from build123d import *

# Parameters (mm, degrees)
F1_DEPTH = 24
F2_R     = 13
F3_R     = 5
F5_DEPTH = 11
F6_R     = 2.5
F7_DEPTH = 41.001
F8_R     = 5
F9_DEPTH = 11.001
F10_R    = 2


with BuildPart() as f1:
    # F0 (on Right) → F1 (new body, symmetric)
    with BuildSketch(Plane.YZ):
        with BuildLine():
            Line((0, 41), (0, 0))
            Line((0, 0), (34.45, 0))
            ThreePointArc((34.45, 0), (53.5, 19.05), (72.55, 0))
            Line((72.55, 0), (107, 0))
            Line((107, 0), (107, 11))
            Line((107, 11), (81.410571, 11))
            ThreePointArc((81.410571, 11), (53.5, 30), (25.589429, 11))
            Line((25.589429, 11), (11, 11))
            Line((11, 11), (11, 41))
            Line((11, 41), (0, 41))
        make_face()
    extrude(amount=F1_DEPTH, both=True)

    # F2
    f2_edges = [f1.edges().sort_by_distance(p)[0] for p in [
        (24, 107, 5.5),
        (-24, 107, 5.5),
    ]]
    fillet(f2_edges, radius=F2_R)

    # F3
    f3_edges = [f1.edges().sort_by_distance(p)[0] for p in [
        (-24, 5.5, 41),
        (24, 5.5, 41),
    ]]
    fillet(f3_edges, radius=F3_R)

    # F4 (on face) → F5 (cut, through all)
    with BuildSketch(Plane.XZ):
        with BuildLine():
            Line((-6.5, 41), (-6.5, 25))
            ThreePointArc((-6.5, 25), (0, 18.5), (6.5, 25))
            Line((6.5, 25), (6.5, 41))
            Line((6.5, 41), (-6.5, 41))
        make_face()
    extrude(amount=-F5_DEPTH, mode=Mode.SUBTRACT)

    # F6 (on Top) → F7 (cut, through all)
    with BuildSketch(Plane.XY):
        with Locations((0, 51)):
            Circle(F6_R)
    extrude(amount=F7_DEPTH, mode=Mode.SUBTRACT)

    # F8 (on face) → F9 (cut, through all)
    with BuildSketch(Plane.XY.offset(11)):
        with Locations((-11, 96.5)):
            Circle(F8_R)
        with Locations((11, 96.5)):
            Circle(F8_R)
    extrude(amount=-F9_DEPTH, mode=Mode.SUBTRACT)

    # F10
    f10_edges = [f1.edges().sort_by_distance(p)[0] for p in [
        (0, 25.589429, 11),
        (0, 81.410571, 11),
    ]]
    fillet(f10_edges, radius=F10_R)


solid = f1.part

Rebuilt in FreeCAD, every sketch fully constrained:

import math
import FreeCAD as App
import Part
import Sketcher


def edges_at(feature, points):
    """Names of the edges that pass closest to the given points."""
    edges = feature.Shape.Edges
    near = lambda p: min(range(len(edges)), key=lambda i: edges[i].distToShape(Part.Vertex(*p))[0])
    return sorted({f"Edge{near(p) + 1}" for p in points})

doc = App.newDocument("Part")
body = doc.addObject("PartDesign::Body", "Body")

# Sketch on YZ plane
sketch1 = doc.addObject("Sketcher::SketchObject", "Sketch")
body.addObject(sketch1)
sketch1.AttachmentSupport = (doc.YZ_Plane, [""])
sketch1.MapMode = "FlatFace"
sketch1.addGeometry(Part.LineSegment(App.Vector(0, 41, 0), App.Vector(0, 0, 0)), False)
sketch1.addGeometry(Part.LineSegment(App.Vector(0, 0, 0), App.Vector(34, 0, 0)), False)
sketch1.addGeometry(Part.ArcOfCircle(Part.Circle(App.Vector(54, 0, 0), App.Vector(0, 0, 1), 19), math.radians(0), math.radians(180)), False)
sketch1.addGeometry(Part.LineSegment(App.Vector(73, 0, 0), App.Vector(107, 0, 0)), False)
sketch1.addGeometry(Part.LineSegment(App.Vector(107, 0, 0), App.Vector(107, 11, 0)), False)
sketch1.addGeometry(Part.LineSegment(App.Vector(107, 11, 0), App.Vector(81, 11, 0)), False)
sketch1.addGeometry(Part.ArcOfCircle(Part.Circle(App.Vector(54, 0, 0), App.Vector(0, 0, 1), 30), math.radians(22), math.radians(158)), False)
sketch1.addGeometry(Part.LineSegment(App.Vector(26, 11, 0), App.Vector(11, 11, 0)), False)
sketch1.addGeometry(Part.LineSegment(App.Vector(11, 11, 0), App.Vector(11, 41, 0)), False)
sketch1.addGeometry(Part.LineSegment(App.Vector(11, 41, 0), App.Vector(0, 41, 0)), False)
sketch1.addConstraint(Sketcher.Constraint("Coincident", 0, 2, 1, 1))
sketch1.addConstraint(Sketcher.Constraint("Coincident", 1, 2, 2, 2))
sketch1.addConstraint(Sketcher.Constraint("Coincident", 2, 1, 3, 1))
sketch1.addConstraint(Sketcher.Constraint("Coincident", 3, 2, 4, 1))
sketch1.addConstraint(Sketcher.Constraint("Coincident", 4, 2, 5, 1))
sketch1.addConstraint(Sketcher.Constraint("Coincident", 5, 2, 6, 1))
sketch1.addConstraint(Sketcher.Constraint("Coincident", 6, 2, 7, 1))
sketch1.addConstraint(Sketcher.Constraint("Coincident", 7, 2, 8, 1))
sketch1.addConstraint(Sketcher.Constraint("Coincident", 8, 2, 9, 1))
sketch1.addConstraint(Sketcher.Constraint("Coincident", 9, 2, 0, 1))
sketch1.addConstraint(Sketcher.Constraint("Vertical", 0))
sketch1.addConstraint(Sketcher.Constraint("Horizontal", 1))
sketch1.addConstraint(Sketcher.Constraint("Horizontal", 3))
sketch1.addConstraint(Sketcher.Constraint("Vertical", 4))
sketch1.addConstraint(Sketcher.Constraint("Horizontal", 5))
sketch1.addConstraint(Sketcher.Constraint("Horizontal", 7))
sketch1.addConstraint(Sketcher.Constraint("Vertical", 8))
sketch1.addConstraint(Sketcher.Constraint("Horizontal", 9))
sketch1.addConstraint(Sketcher.Constraint("Coincident", 0, 2, -1, 1))
sketch1.addConstraint(Sketcher.Constraint("Coincident", 6, 3, 2, 3))
sketch1.addConstraint(Sketcher.Constraint("PointOnObject", 2, 3, -1))
sketch1.addConstraint(Sketcher.Constraint("PointOnObject", 2, 1, -1))
sketch1.addConstraint(Sketcher.Constraint("Horizontal", 5, 2, 6, 2))
sketch1.addConstraint(Sketcher.Constraint("Equal", 1, 3))
sketch1.addConstraint(Sketcher.Constraint("Equal", 9, 4))
sketch1.addConstraint(Sketcher.Constraint("Radius", 6, 29.999999))
sketch1.addConstraint(Sketcher.Constraint("DistanceX", 9, 2, 9, 1, 11.0))
sketch1.addConstraint(Sketcher.Constraint("DistanceY", 0, 2, 0, 1, 41.0))
sketch1.addConstraint(Sketcher.Constraint("Radius", 2, 19.05))
sketch1.addConstraint(Sketcher.Constraint("DistanceX", -1, 1, 3, 2, 107.0))
pad1 = doc.addObject("PartDesign::Pad", "Pad")
body.addObject(pad1)
pad1.Profile = sketch1
pad1.Length = 48
pad1.Midplane = True
doc.recompute()

fillet = doc.addObject("PartDesign::Fillet", "Fillet")
body.addObject(fillet)
fillet.Base = (pad1, edges_at(pad1, [(24, 107, 5.5), (-24, 107, 5.5)]))
fillet.Radius = 13
doc.recompute()

fillet2 = doc.addObject("PartDesign::Fillet", "Fillet001")
body.addObject(fillet2)
fillet2.Base = (fillet, edges_at(fillet, [(-24, 5.5, 41), (24, 5.5, 41)]))
fillet2.Radius = 5

# Sketch on XZ plane
sketch2 = doc.addObject("Sketcher::SketchObject", "Sketch001")
body.addObject(sketch2)
sketch2.AttachmentSupport = (doc.XZ_Plane, [""])
sketch2.MapMode = "FlatFace"
sketch2.addGeometry(Part.LineSegment(App.Vector(-6, 41, 0), App.Vector(-6, 25, 0)), False)
sketch2.addGeometry(Part.ArcOfCircle(Part.Circle(App.Vector(0, 25, 0), App.Vector(0, 0, 1), 6), math.radians(180), math.radians(360)), False)
sketch2.addGeometry(Part.LineSegment(App.Vector(6, 25, 0), App.Vector(6, 41, 0)), False)
sketch2.addGeometry(Part.LineSegment(App.Vector(6, 41, 0), App.Vector(-6, 41, 0)), False)
sketch2.addConstraint(Sketcher.Constraint("Tangent", 0, 2, 1, 1))
sketch2.addConstraint(Sketcher.Constraint("Tangent", 1, 2, 2, 1))
sketch2.addConstraint(Sketcher.Constraint("Coincident", 2, 2, 3, 1))
sketch2.addConstraint(Sketcher.Constraint("Coincident", 3, 2, 0, 1))
sketch2.addConstraint(Sketcher.Constraint("Vertical", 0))
sketch2.addConstraint(Sketcher.Constraint("Vertical", 2))
sketch2.addConstraint(Sketcher.Constraint("Horizontal", 3))
sketch2.addConstraint(Sketcher.Constraint("PointOnObject", 1, 3, -2))
sketch2.addConstraint(Sketcher.Constraint("Radius", 1, 6.5))
sketch2.addConstraint(Sketcher.Constraint("DistanceY", 0, 2, 0, 1, 16.0))
sketch2.addConstraint(Sketcher.Constraint("DistanceY", -1, 1, 1, 3, 25.0))
pocket1 = doc.addObject("PartDesign::Pocket", "Pocket")
body.addObject(pocket1)
pocket1.Profile = sketch2
pocket1.Length = 11

# Sketch on XY plane
sketch3 = doc.addObject("Sketcher::SketchObject", "Sketch002")
body.addObject(sketch3)
sketch3.AttachmentSupport = (doc.XY_Plane, [""])
sketch3.MapMode = "FlatFace"
sketch3.addGeometry(Part.Circle(App.Vector(0, 51, 0), App.Vector(0, 0, 1), 2.5), False)
sketch3.addConstraint(Sketcher.Constraint("PointOnObject", 0, 3, -2))
sketch3.addConstraint(Sketcher.Constraint("Diameter", 0, 5.0))
sketch3.addConstraint(Sketcher.Constraint("DistanceY", -1, 1, 0, 3, 51.0))
pocket2 = doc.addObject("PartDesign::Pocket", "Pocket001")
body.addObject(pocket2)
pocket2.Profile = sketch3
pocket2.Type = "ThroughAll"
pocket2.Reversed = True

# Sketch on XY plane
sketch4 = doc.addObject("Sketcher::SketchObject", "Sketch003")
body.addObject(sketch4)
sketch4.AttachmentSupport = (doc.XY_Plane, [""])
sketch4.MapMode = "FlatFace"
sketch4.AttachmentOffset = App.Placement(App.Vector(0, 0, 11), App.Rotation())
sketch4.addGeometry(Part.Circle(App.Vector(-11, 96, 0), App.Vector(0, 0, 1), 5), False)
sketch4.addGeometry(Part.Circle(App.Vector(11, 96, 0), App.Vector(0, 0, 1), 5), False)
sketch4.addConstraint(Sketcher.Constraint("Equal", 0, 1))
sketch4.addConstraint(Sketcher.Constraint("Symmetric", 0, 3, 1, 3, -2))
sketch4.addConstraint(Sketcher.Constraint("Diameter", 0, 10.0))
sketch4.addConstraint(Sketcher.Constraint("DistanceX", 0, 3, -1, 1, 11.0))
sketch4.addConstraint(Sketcher.Constraint("DistanceY", -1, 1, 0, 3, 96.5))
pocket3 = doc.addObject("PartDesign::Pocket", "Pocket002")
body.addObject(pocket3)
pocket3.Profile = sketch4
pocket3.Type = "ThroughAll"
doc.recompute()

fillet3 = doc.addObject("PartDesign::Fillet", "Fillet002")
body.addObject(fillet3)
fillet3.Base = (pocket3, edges_at(pocket3, [(0, 25.589, 11), (0, 81.411, 11)]))
fillet3.Radius = 2

doc.recompute()
